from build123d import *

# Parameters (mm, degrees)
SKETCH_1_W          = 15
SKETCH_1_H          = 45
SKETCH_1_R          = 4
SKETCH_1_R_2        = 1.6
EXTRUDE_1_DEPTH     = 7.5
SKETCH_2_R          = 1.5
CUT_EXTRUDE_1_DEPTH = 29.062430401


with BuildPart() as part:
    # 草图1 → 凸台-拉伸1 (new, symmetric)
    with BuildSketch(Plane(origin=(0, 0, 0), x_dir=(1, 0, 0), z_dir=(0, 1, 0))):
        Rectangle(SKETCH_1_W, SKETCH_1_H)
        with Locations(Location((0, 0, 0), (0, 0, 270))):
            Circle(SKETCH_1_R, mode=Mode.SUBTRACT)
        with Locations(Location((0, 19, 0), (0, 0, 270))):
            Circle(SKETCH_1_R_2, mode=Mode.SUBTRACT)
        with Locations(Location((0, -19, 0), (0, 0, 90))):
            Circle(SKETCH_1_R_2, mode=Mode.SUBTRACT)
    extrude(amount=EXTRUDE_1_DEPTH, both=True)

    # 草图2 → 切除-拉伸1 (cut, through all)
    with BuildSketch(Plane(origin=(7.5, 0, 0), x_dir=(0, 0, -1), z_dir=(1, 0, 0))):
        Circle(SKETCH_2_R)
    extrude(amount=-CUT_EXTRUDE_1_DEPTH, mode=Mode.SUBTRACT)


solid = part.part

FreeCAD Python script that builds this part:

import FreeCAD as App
import Part
import Sketcher
Q = App.Units.Quantity


def add_polygon(sketch, points):
    """Adds a closed chain of lines whose ends are joined by coincident constraints."""
    first, n = sketch.GeometryCount, len(points)
    for a, b in zip(points, points[1:] + points[:1]):
        sketch.addGeometry(Part.LineSegment(App.Vector(*a, 0), App.Vector(*b, 0)), False)
    for i in range(n):
        sketch.addConstraint(Sketcher.Constraint("Coincident", first + i, 2, first + (i + 1) % n, 1))

doc = App.newDocument("Part")
body = doc.addObject("PartDesign::Body", "Body")

# Sketch on XZ plane
sketch1 = body.newObject("Sketcher::SketchObject", "Sketch")
sketch1.AttachmentSupport = (doc.getObject("XZ_Plane"), [""])
sketch1.MapMode = "FlatFace"
add_polygon(sketch1, [(-7.5, -22.5), (-7.5, 22.5), (7.5, 22.5), (7.5, -22.5)])  # lines 0-3
sketch1.addGeometry(Part.Circle(App.Vector(0, 19, 0), App.Vector(0, 0, 1), 1.6), False)  # 4
sketch1.addGeometry(Part.Circle(App.Vector(0, 0, 0), App.Vector(0, 0, 1), 4), False)  # 5
sketch1.addGeometry(Part.Circle(App.Vector(0, -19, 0), App.Vector(0, 0, 1), 1.6), False)  # 6
sketch1.addConstraint([
    Sketcher.Constraint("Vertical", 0),
    Sketcher.Constraint("Horizontal", 1),
    Sketcher.Constraint("Vertical", 2),
    Sketcher.Constraint("Horizontal", 3),
    Sketcher.Constraint("Coincident", 5, 3, -1, 1),
    Sketcher.Constraint("Equal", 4, 6),
    Sketcher.Constraint("Symmetric", 4, 3, 6, 3, -1, 1),
    Sketcher.Constraint("Symmetric", 0, 2, 2, 2, -1, 1),
    Sketcher.Constraint("PointOnObject", 4, 3, -2),
    Sketcher.Constraint("Diameter", 5, Q("8 mm")),
    Sketcher.Constraint("Diameter", 4, Q("3.2 mm")),
    Sketcher.Constraint("DistanceX", 1, 1, 1, 2, Q("15 mm")),
    Sketcher.Constraint("DistanceY", 0, 1, 0, 2, Q("45 mm")),
    Sketcher.Constraint("DistanceY", -1, 1, 4, 3, Q("19 mm")),
])
pad1 = body.newObject("PartDesign::Pad", "Pad")
pad1.Profile = sketch1
pad1.Length = 15
pad1.Midplane = True

# Sketch on YZ plane
sketch2 = body.newObject("Sketcher::SketchObject", "Sketch001")
sketch2.AttachmentSupport = (doc.getObject("YZ_Plane"), [""])
sketch2.MapMode = "FlatFace"
sketch2.AttachmentOffset = App.Placement(App.Vector(0, 0, 7.5), App.Rotation())
sketch2.addGeometry(Part.Circle(App.Vector(0, 0, 0), App.Vector(0, 0, 1), 1.5), False)
sketch2.addConstraint([
    Sketcher.Constraint("Coincident", 0, 3, -1, 1),
    Sketcher.Constraint("Diameter", 0, Q("3 mm")),
])
pocket1 = body.newObject("PartDesign::Pocket", "Pocket")
pocket1.Profile = sketch2
pocket1.Type = "ThroughAll"

doc.recompute()
